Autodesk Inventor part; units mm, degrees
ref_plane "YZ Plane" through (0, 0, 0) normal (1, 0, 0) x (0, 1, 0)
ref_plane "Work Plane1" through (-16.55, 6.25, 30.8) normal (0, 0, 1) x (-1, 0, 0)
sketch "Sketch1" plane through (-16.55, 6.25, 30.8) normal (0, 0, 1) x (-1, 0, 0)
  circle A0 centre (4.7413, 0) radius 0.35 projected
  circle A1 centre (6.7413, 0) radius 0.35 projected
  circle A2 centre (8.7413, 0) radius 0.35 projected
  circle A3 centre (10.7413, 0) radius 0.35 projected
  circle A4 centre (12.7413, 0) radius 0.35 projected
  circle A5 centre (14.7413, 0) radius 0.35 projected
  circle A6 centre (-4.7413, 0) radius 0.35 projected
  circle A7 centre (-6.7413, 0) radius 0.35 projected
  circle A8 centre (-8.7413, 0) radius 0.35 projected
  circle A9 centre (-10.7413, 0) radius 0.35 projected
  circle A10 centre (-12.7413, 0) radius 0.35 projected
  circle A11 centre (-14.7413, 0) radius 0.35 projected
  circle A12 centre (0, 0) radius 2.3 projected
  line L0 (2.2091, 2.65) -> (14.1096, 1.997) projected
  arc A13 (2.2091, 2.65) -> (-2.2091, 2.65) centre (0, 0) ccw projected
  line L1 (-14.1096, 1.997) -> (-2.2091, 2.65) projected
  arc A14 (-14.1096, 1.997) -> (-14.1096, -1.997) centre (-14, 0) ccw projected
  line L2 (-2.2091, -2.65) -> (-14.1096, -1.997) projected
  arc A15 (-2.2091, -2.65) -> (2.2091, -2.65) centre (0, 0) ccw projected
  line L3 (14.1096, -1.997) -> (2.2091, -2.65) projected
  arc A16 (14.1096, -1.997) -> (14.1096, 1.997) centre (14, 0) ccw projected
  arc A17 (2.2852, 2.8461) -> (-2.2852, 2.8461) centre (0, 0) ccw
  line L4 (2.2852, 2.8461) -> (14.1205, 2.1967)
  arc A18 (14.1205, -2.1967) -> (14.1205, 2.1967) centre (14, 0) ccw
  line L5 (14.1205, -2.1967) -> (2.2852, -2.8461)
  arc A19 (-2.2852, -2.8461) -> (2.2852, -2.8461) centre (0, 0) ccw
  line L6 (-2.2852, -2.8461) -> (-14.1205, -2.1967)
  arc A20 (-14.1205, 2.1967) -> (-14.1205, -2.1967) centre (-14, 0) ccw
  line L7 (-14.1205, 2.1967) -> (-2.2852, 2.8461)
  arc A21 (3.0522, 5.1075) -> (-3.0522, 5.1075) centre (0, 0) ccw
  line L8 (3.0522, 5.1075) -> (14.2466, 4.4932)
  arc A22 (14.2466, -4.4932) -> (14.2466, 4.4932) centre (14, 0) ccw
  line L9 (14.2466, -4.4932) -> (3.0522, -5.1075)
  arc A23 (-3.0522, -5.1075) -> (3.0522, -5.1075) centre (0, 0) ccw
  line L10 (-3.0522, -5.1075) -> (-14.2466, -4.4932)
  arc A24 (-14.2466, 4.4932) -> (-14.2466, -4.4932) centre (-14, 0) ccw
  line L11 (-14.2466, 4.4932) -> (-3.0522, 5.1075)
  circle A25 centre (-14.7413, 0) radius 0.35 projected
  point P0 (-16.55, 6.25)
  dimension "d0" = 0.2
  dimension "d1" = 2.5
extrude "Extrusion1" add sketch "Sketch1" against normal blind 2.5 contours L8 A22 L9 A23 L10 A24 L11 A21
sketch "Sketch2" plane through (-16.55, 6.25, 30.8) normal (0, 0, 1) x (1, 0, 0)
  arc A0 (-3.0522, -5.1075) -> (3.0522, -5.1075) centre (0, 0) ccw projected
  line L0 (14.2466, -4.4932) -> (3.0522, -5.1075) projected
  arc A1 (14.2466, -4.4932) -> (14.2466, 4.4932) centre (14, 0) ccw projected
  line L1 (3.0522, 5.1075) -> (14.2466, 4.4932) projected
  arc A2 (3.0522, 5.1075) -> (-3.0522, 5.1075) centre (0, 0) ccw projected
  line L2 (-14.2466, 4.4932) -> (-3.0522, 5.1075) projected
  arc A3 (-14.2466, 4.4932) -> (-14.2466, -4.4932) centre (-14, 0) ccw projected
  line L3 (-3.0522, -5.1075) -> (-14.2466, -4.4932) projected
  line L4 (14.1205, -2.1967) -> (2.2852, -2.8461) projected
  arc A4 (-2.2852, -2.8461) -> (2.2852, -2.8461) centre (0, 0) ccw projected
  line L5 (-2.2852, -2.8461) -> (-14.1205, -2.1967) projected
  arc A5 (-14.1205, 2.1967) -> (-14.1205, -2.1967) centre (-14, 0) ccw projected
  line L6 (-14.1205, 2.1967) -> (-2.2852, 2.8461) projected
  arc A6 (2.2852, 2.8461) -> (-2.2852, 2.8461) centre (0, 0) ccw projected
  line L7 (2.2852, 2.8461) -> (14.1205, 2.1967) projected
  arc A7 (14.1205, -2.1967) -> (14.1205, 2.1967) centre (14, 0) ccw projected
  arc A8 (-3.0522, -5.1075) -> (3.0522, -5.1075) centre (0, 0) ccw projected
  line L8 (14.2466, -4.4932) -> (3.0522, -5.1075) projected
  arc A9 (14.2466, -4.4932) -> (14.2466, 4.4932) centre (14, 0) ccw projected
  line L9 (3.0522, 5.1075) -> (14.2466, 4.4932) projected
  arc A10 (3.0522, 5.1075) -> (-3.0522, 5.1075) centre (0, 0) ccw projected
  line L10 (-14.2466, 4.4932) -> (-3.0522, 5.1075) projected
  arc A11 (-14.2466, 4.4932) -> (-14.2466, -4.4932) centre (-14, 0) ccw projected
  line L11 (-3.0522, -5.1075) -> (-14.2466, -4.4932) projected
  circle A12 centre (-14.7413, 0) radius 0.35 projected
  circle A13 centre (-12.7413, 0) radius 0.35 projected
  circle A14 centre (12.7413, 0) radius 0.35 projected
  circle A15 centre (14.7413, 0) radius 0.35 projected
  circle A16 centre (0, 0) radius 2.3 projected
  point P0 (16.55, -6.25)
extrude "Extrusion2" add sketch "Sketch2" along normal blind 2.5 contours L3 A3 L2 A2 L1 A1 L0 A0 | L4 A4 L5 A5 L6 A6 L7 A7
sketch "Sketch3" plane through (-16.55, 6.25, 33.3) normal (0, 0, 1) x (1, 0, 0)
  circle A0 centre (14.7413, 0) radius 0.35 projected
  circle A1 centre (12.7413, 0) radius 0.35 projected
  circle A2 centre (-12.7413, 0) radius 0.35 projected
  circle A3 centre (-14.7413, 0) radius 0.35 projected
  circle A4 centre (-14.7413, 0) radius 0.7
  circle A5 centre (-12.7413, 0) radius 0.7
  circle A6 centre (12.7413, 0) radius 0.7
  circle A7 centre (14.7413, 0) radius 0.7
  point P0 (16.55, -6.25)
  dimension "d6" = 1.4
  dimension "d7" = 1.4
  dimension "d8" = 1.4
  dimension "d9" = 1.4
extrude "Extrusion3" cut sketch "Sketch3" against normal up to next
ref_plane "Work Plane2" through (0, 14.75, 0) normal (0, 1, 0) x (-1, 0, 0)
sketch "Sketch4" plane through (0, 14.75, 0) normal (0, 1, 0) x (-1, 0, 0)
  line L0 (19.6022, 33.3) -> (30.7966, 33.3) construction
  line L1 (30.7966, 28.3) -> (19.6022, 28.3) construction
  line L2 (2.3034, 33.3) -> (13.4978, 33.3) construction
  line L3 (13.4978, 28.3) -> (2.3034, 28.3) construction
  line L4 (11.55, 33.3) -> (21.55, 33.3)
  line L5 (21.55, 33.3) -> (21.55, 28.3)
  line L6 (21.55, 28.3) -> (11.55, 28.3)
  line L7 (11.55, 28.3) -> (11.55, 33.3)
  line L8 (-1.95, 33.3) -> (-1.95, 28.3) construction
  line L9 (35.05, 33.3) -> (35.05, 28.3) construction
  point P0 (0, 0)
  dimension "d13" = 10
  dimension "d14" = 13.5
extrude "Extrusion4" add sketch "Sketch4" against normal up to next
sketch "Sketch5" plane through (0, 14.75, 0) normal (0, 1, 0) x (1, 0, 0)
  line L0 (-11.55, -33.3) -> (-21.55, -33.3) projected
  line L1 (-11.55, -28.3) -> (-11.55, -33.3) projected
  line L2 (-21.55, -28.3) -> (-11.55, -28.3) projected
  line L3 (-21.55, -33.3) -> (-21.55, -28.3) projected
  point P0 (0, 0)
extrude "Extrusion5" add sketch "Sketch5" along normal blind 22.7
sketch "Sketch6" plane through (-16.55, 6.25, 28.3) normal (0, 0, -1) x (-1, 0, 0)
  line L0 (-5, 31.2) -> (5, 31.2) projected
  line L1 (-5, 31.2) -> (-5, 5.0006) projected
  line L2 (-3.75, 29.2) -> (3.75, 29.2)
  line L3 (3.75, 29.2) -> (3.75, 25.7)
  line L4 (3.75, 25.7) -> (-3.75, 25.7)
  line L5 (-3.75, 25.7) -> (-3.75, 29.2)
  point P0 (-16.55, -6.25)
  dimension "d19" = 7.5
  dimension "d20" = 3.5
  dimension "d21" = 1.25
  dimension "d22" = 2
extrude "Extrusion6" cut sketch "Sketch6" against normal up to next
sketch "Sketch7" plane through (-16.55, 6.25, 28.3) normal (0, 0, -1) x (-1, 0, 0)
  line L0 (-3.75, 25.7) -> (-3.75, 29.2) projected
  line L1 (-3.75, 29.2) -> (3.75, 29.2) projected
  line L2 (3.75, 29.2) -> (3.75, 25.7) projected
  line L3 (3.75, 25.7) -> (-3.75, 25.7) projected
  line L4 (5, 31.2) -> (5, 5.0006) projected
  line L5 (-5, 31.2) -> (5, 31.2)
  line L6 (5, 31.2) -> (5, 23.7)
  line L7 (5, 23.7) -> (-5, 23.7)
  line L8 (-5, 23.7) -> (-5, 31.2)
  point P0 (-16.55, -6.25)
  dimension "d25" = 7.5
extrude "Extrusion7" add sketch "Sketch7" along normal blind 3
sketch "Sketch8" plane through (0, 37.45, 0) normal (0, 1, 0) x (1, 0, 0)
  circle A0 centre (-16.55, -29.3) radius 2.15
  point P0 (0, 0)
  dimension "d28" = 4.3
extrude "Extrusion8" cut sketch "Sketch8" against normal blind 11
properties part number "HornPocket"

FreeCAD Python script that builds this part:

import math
import FreeCAD as App
import Part
import Sketcher
from FreeCAD import Vector
Q = App.Units.Quantity


def add_polygon(sketch, points):
    """Adds a closed chain of lines whose ends are joined by coincident constraints."""
    first, n = sketch.GeometryCount, len(points)
    for a, b in zip(points, points[1:] + points[:1]):
        sketch.addGeometry(Part.LineSegment(App.Vector(*a, 0), App.Vector(*b, 0)), False)
    for i in range(n):
        sketch.addConstraint(Sketcher.Constraint("Coincident", first + i, 2, first + (i + 1) % n, 1))

doc = App.newDocument("Part")
body = doc.addObject("PartDesign::Body", "Body")

# Sketch on XY plane
sketch1 = body.newObject("Sketcher::SketchObject", "Sketch")
sketch1.AttachmentSupport = (doc.getObject("XY_Plane"), [""])
sketch1.MapMode = "FlatFace"
sketch1.AttachmentOffset = App.Placement(Vector(0, 0, 30.8), App.Rotation())
sketch1.addGeometry(Part.LineSegment(Vector(-30.8, 1.8, 0), Vector(-19.6, 1.1, 0)), False)
sketch1.addGeometry(Part.ArcOfCircle(Part.Circle(Vector(-16.6, 6.2, 0), Vector(0, 0, 1), 5.9), math.radians(-121), math.radians(-59)), False)
sketch1.addGeometry(Part.LineSegment(Vector(-13.5, 1.1, 0), Vector(-2.3, 1.8, 0)), False)
sketch1.addGeometry(Part.ArcOfCircle(Part.Circle(Vector(-2.5, 6.2, 0), Vector(0, 0, 1), 4.5), math.radians(-87), math.radians(87)), False)
sketch1.addGeometry(Part.LineSegment(Vector(-2.3, 10.7, 0), Vector(-13.5, 11.4, 0)), False)
sketch1.addGeometry(Part.ArcOfCircle(Part.Circle(Vector(-16.6, 6.2, 0), Vector(0, 0, 1), 5.9), math.radians(59), math.radians(121)), False)
sketch1.addGeometry(Part.LineSegment(Vector(-19.6, 11.4, 0), Vector(-30.8, 10.7, 0)), False)
sketch1.addGeometry(Part.ArcOfCircle(Part.Circle(Vector(-30.6, 6.2, 0), Vector(0, 0, 1), 4.5), math.radians(93), math.radians(267)), False)
sketch1.addGeometry(Part.ArcOfCircle(Part.Circle(Vector(-16.6, 6.2, 0), Vector(0, 0, 1), 3.6), math.radians(-129), math.radians(-51)), False)
sketch1.addGeometry(Part.LineSegment(Vector(-18.8, 3.4, 0), Vector(-30.7, 4.1, 0)), False)
sketch1.addGeometry(Part.ArcOfCircle(Part.Circle(Vector(-30.6, 6.2, 0), Vector(0, 0, 1), 2.2), math.radians(93), math.radians(267)), False)
sketch1.addGeometry(Part.LineSegment(Vector(-30.7, 8.4, 0), Vector(-18.8, 9.1, 0)), False)
sketch1.addGeometry(Part.ArcOfCircle(Part.Circle(Vector(-16.6, 6.2, 0), Vector(0, 0, 1), 3.6), math.radians(51), math.radians(129)), False)
sketch1.addGeometry(Part.LineSegment(Vector(-14.3, 9.1, 0), Vector(-2.4, 8.4, 0)), False)
sketch1.addGeometry(Part.ArcOfCircle(Part.Circle(Vector(-2.5, 6.2, 0), Vector(0, 0, 1), 2.2), math.radians(-87), math.radians(87)), False)
sketch1.addGeometry(Part.LineSegment(Vector(-2.4, 4.1, 0), Vector(-14.3, 3.4, 0)), False)
sketch1.addConstraint(Sketcher.Constraint("Coincident", 0, 2, 1, 1))
sketch1.addConstraint(Sketcher.Constraint("Coincident", 1, 2, 2, 1))
sketch1.addConstraint(Sketcher.Constraint("Tangent", 2, 2, 3, 1))
sketch1.addConstraint(Sketcher.Constraint("Tangent", 3, 2, 4, 1))
sketch1.addConstraint(Sketcher.Constraint("Coincident", 4, 2, 5, 1))
sketch1.addConstraint(Sketcher.Constraint("Coincident", 5, 2, 6, 1))
sketch1.addConstraint(Sketcher.Constraint("Tangent", 6, 2, 7, 1))
sketch1.addConstraint(Sketcher.Constraint("Tangent", 7, 2, 0, 1))
sketch1.addConstraint(Sketcher.Constraint("Coincident", 8, 1, 9, 1))
sketch1.addConstraint(Sketcher.Constraint("Tangent", 9, 2, 10, 2))
sketch1.addConstraint(Sketcher.Constraint("Tangent", 10, 1, 11, 1))
sketch1.addConstraint(Sketcher.Constraint("Coincident", 11, 2, 12, 2))
sketch1.addConstraint(Sketcher.Constraint("Coincident", 12, 1, 13, 1))
sketch1.addConstraint(Sketcher.Constraint("Tangent", 13, 2, 14, 2))
sketch1.addConstraint(Sketcher.Constraint("Tangent", 14, 1, 15, 1))
sketch1.addConstraint(Sketcher.Constraint("Coincident", 15, 2, 8, 2))
sketch1.addConstraint(Sketcher.Constraint("Coincident", 5, 3, 1, 3))
sketch1.addConstraint(Sketcher.Constraint("Coincident", 8, 3, 1, 3))
sketch1.addConstraint(Sketcher.Constraint("Coincident", 10, 3, 7, 3))
sketch1.addConstraint(Sketcher.Constraint("Coincident", 12, 3, 1, 3))
sketch1.addConstraint(Sketcher.Constraint("Coincident", 14, 3, 3, 3))
sketch1.addConstraint(Sketcher.Constraint("Equal", 1, 5))
sketch1.addConstraint(Sketcher.Constraint("Equal", 3, 7))
sketch1.addConstraint(Sketcher.Constraint("Equal", 8, 12))
sketch1.addConstraint(Sketcher.Constraint("Equal", 10, 14))
sketch1.addConstraint(Sketcher.Constraint("Parallel", 0, 4))
sketch1.addConstraint(Sketcher.Constraint("Parallel", 2, 6))
sketch1.addConstraint(Sketcher.Constraint("Parallel", 4, 9))
sketch1.addConstraint(Sketcher.Constraint("Parallel", 6, 11))
sketch1.addConstraint(Sketcher.Constraint("Parallel", 9, 13))
sketch1.addConstraint(Sketcher.Constraint("Parallel", 11, 15))
sketch1.addConstraint(Sketcher.Constraint("Horizontal", 1, 3, 3, 3))
sketch1.addConstraint(Sketcher.Constraint("Horizontal", 5, 3, 7, 3))
sketch1.addConstraint(Sketcher.Constraint("Horizontal", 0, 2, 1, 2))
sketch1.addConstraint(Sketcher.Constraint("Horizontal", 4, 2, 5, 2))
sketch1.addConstraint(Sketcher.Constraint("Radius", 3, Q("4.5 mm")))
sketch1.addConstraint(Sketcher.Constraint("Radius", 10, Q("2.2 mm")))
sketch1.addConstraint(Sketcher.Constraint("Radius", 1, Q("5.95 mm")))
sketch1.addConstraint(Sketcher.Constraint("Radius", 8, Q("3.65 mm")))
sketch1.addConstraint(Sketcher.Constraint("DistanceX", 1, 3, 3, 3, Q("14 mm")))
sketch1.addConstraint(Sketcher.Constraint("Angle", 0, Q("-3.141 deg")))
sketch1.addConstraint(Sketcher.Constraint("DistanceX", 1, 3, -1, 1, Q("16.55 mm")))
sketch1.addConstraint(Sketcher.Constraint("DistanceY", -1, 1, 1, 3, Q("6.25 mm")))
pad1 = body.newObject("PartDesign::Pad", "Pad")
pad1.Profile = sketch1
pad1.Length = 2.5
pad1.Reversed = True

# Sketch on XY plane
sketch2 = body.newObject("Sketcher::SketchObject", "Sketch001")
sketch2.AttachmentSupport = (doc.getObject("XY_Plane"), [""])
sketch2.MapMode = "FlatFace"
sketch2.AttachmentOffset = App.Placement(Vector(0, 0, 30.8), App.Rotation())
sketch2.addGeometry(Part.LineSegment(Vector(-30.8, 1.76, 0), Vector(-19.6, 1.14, 0)), False)
sketch2.addGeometry(Part.ArcOfCircle(Part.Circle(Vector(-16.55, 6.25, 0), Vector(0, 0, 1), 5.95), math.radians(-121), math.radians(-59)), False)
sketch2.addGeometry(Part.LineSegment(Vector(-13.5, 1.14, 0), Vector(-2.3, 1.76, 0)), False)
sketch2.addGeometry(Part.ArcOfCircle(Part.Circle(Vector(-2.55, 6.25, 0), Vector(0, 0, 1), 4.5), math.radians(-87), math.radians(87)), False)
sketch2.addGeometry(Part.LineSegment(Vector(-2.3, 10.74, 0), Vector(-13.5, 11.36, 0)), False)
sketch2.addGeometry(Part.ArcOfCircle(Part.Circle(Vector(-16.55, 6.25, 0), Vector(0, 0, 1), 5.95), math.radians(59), math.radians(121)), False)
sketch2.addGeometry(Part.LineSegment(Vector(-19.6, 11.36, 0), Vector(-30.8, 10.74, 0)), False)
sketch2.addGeometry(Part.ArcOfCircle(Part.Circle(Vector(-30.55, 6.25, 0), Vector(0, 0, 1), 4.5), math.radians(93), math.radians(267)), False)
sketch2.addGeometry(Part.Circle(Vector(-16.55, 6.25, 0), Vector(0, 0, 1), 2.3), False)
sketch2.addGeometry(Part.Circle(Vector(-3.81, 6.25, 0), Vector(0, 0, 1), 0.35), False)
sketch2.addGeometry(Part.Circle(Vector(-1.81, 6.25, 0), Vector(0, 0, 1), 0.35), False)
sketch2.addGeometry(Part.Circle(Vector(-31.29, 6.25, 0), Vector(0, 0, 1), 0.35), False)
sketch2.addGeometry(Part.Circle(Vector(-29.29, 6.25, 0), Vector(0, 0, 1), 0.35), False)
sketch2.addConstraint(Sketcher.Constraint("Coincident", 0, 2, 1, 1))
sketch2.addConstraint(Sketcher.Constraint("Coincident", 1, 2, 2, 1))
sketch2.addConstraint(Sketcher.Constraint("Tangent", 2, 2, 3, 1))
sketch2.addConstraint(Sketcher.Constraint("Tangent", 3, 2, 4, 1))
sketch2.addConstraint(Sketcher.Constraint("Coincident", 4, 2, 5, 1))
sketch2.addConstraint(Sketcher.Constraint("Coincident", 5, 2, 6, 1))
sketch2.addConstraint(Sketcher.Constraint("Tangent", 6, 2, 7, 1))
sketch2.addConstraint(Sketcher.Constraint("Tangent", 7, 2, 0, 1))
sketch2.addConstraint(Sketcher.Constraint("Coincident", 5, 3, 1, 3))
sketch2.addConstraint(Sketcher.Constraint("Coincident", 8, 3, 1, 3))
sketch2.addConstraint(Sketcher.Constraint("Equal", 1, 5))
sketch2.addConstraint(Sketcher.Constraint("Equal", 3, 7))
sketch2.addConstraint(Sketcher.Constraint("Equal", 9, 10))
sketch2.addConstraint(Sketcher.Constraint("Equal", 10, 11))
sketch2.addConstraint(Sketcher.Constraint("Equal", 11, 12))
sketch2.addConstraint(Sketcher.Constraint("Parallel", 0, 4))
sketch2.addConstraint(Sketcher.Constraint("Parallel", 2, 6))
sketch2.addConstraint(Sketcher.Constraint("Horizontal", 1, 3, 3, 3))
sketch2.addConstraint(Sketcher.Constraint("Horizontal", 5, 3, 7, 3))
sketch2.addConstraint(Sketcher.Constraint("Horizontal", 8, 3, 9, 3))
sketch2.addConstraint(Sketcher.Constraint("Horizontal", 9, 3, 10, 3))
sketch2.addConstraint(Sketcher.Constraint("Horizontal", 10, 3, 11, 3))
sketch2.addConstraint(Sketcher.Constraint("Horizontal", 11, 3, 12, 3))
sketch2.addConstraint(Sketcher.Constraint("Horizontal", 0, 2, 1, 2))
sketch2.addConstraint(Sketcher.Constraint("Horizontal", 4, 2, 5, 2))
sketch2.addConstraint(Sketcher.Constraint("Diameter", 8, Q("4.6 mm")))
sketch2.addConstraint(Sketcher.Constraint("Diameter", 9, Q("0.7 mm")))
sketch2.addConstraint(Sketcher.Constraint("Radius", 3, Q("4.5 mm")))
sketch2.addConstraint(Sketcher.Constraint("Radius", 1, Q("5.95 mm")))
sketch2.addConstraint(Sketcher.Constraint("DistanceX", 1, 3, 3, 3, Q("14 mm")))
sketch2.addConstraint(Sketcher.Constraint("DistanceX", 9, 3, 10, 3, Q("2 mm")))
sketch2.addConstraint(Sketcher.Constraint("DistanceX", 11, 3, 12, 3, Q("2 mm")))
sketch2.addConstraint(Sketcher.Constraint("Angle", 0, Q("-3.141 deg")))
sketch2.addConstraint(Sketcher.Constraint("DistanceX", 1, 3, -1, 1, Q("16.55 mm")))
sketch2.addConstraint(Sketcher.Constraint("DistanceY", -1, 1, 1, 3, Q("6.25 mm")))
sketch2.addConstraint(Sketcher.Constraint("DistanceX", 12, 3, 0, 2, Q("9.689 mm")))
sketch2.addConstraint(Sketcher.Constraint("DistanceX", 1, 2, 9, 3, Q("9.689 mm")))
pad2 = body.newObject("PartDesign::Pad", "Pad001")
pad2.Profile = sketch2
pad2.Length = 2.5

# Sketch on XY plane
sketch3 = body.newObject("Sketcher::SketchObject", "Sketch002")
sketch3.AttachmentSupport = (doc.getObject("XY_Plane"), [""])
sketch3.MapMode = "FlatFace"
sketch3.AttachmentOffset = App.Placement(Vector(0, 0, 33.3), App.Rotation())
sketch3.addGeometry(Part.Circle(Vector(-31.29, 6.25, 0), Vector(0, 0, 1), 0.7), False)
sketch3.addGeometry(Part.Circle(Vector(-31.29, 6.25, 0), Vector(0, 0, 1), 0.35), False)
sketch3.addGeometry(Part.Circle(Vector(-29.29, 6.25, 0), Vector(0, 0, 1), 0.7), False)
sketch3.addGeometry(Part.Circle(Vector(-29.29, 6.25, 0), Vector(0, 0, 1), 0.35), False)
sketch3.addGeometry(Part.Circle(Vector(-3.81, 6.25, 0), Vector(0, 0, 1), 0.7), False)
sketch3.addGeometry(Part.Circle(Vector(-3.81, 6.25, 0), Vector(0, 0, 1), 0.35), False)
sketch3.addGeometry(Part.Circle(Vector(-1.81, 6.25, 0), Vector(0, 0, 1), 0.7), False)
sketch3.addGeometry(Part.Circle(Vector(-1.81, 6.25, 0), Vector(0, 0, 1), 0.35), False)
sketch3.addConstraint(Sketcher.Constraint("Coincident", 1, 3, 0, 3))
sketch3.addConstraint(Sketcher.Constraint("Coincident", 3, 3, 2, 3))
sketch3.addConstraint(Sketcher.Constraint("Coincident", 5, 3, 4, 3))
sketch3.addConstraint(Sketcher.Constraint("Coincident", 7, 3, 6, 3))
sketch3.addConstraint(Sketcher.Constraint("Equal", 0, 2))
sketch3.addConstraint(Sketcher.Constraint("Equal", 1, 3))
sketch3.addConstraint(Sketcher.Constraint("Equal", 2, 4))
sketch3.addConstraint(Sketcher.Constraint("Equal", 3, 5))
sketch3.addConstraint(Sketcher.Constraint("Equal", 4, 6))
sketch3.addConstraint(Sketcher.Constraint("Equal", 5, 7))
sketch3.addConstraint(Sketcher.Constraint("Horizontal", 1, 3, 2, 3))
sketch3.addConstraint(Sketcher.Constraint("Horizontal", 3, 3, 4, 3))
sketch3.addConstraint(Sketcher.Constraint("Horizontal", 5, 3, 6, 3))
sketch3.addConstraint(Sketcher.Constraint("Diameter", 0, Q("1.4 mm")))
sketch3.addConstraint(Sketcher.Constraint("Diameter", 1, Q("0.7 mm")))
sketch3.addConstraint(Sketcher.Constraint("DistanceX", 0, 3, 2, 3, Q("2 mm")))
sketch3.addConstraint(Sketcher.Constraint("DistanceX", 4, 3, 6, 3, Q("2 mm")))
sketch3.addConstraint(Sketcher.Constraint("DistanceY", -1, 1, 0, 3, Q("6.25 mm")))
sketch3.addConstraint(Sketcher.Constraint("DistanceX", 0, 3, -1, 1, Q("31.2913 mm")))
sketch3.addConstraint(Sketcher.Constraint("DistanceX", 4, 3, -1, 1, Q("3.8087 mm")))
pocket1 = body.newObject("PartDesign::Pocket", "Pocket")
pocket1.Profile = sketch3
pocket1.Length = 2.5

# Sketch on XZ plane
sketch4 = body.newObject("Sketcher::SketchObject", "Sketch003")
sketch4.AttachmentSupport = (doc.getObject("XZ_Plane"), [""])
sketch4.MapMode = "FlatFace"
sketch4.AttachmentOffset = App.Placement(Vector(0, 0, -14.75), App.Rotation())
add_polygon(sketch4, [(-21.6, 33.3), (-11.6, 33.3), (-11.6, 28.3), (-21.6, 28.3)])  # lines 0-3
sketch4.addConstraint(Sketcher.Constraint("Horizontal", 0))
sketch4.addConstraint(Sketcher.Constraint("Vertical", 1))
sketch4.addConstraint(Sketcher.Constraint("Horizontal", 2))
sketch4.addConstraint(Sketcher.Constraint("Vertical", 3))
sketch4.addConstraint(Sketcher.Constraint("DistanceX", 0, 1, 0, 2, Q("10 mm")))
sketch4.addConstraint(Sketcher.Constraint("DistanceY", 1, 2, 1, 1, Q("5 mm")))
sketch4.addConstraint(Sketcher.Constraint("DistanceY", -1, 1, 0, 2, Q("33.3 mm")))
sketch4.addConstraint(Sketcher.Constraint("DistanceX", 0, 2, -1, 1, Q("11.55 mm")))
pad3 = body.newObject("PartDesign::Pad", "Pad002")
pad3.Profile = sketch4
pad3.Type = "UpToFirst"

# Sketch on XZ plane
sketch5 = body.newObject("Sketcher::SketchObject", "Sketch004")
sketch5.AttachmentSupport = (doc.getObject("XZ_Plane"), [""])
sketch5.MapMode = "FlatFace"
sketch5.AttachmentOffset = App.Placement(Vector(0, 0, -14.75), App.Rotation())
add_polygon(sketch5, [(-21.6, 33.3), (-11.6, 33.3), (-11.6, 28.3), (-21.6, 28.3)])  # lines 0-3
sketch5.addConstraint(Sketcher.Constraint("Horizontal", 0))
sketch5.addConstraint(Sketcher.Constraint("Vertical", 1))
sketch5.addConstraint(Sketcher.Constraint("Horizontal", 2))
sketch5.addConstraint(Sketcher.Constraint("Vertical", 3))
sketch5.addConstraint(Sketcher.Constraint("DistanceX", 0, 1, 0, 2, Q("10 mm")))
sketch5.addConstraint(Sketcher.Constraint("DistanceY", 1, 2, 1, 1, Q("5 mm")))
sketch5.addConstraint(Sketcher.Constraint("DistanceY", -1, 1, 0, 2, Q("33.3 mm")))
sketch5.addConstraint(Sketcher.Constraint("DistanceX", 0, 2, -1, 1, Q("11.55 mm")))
pad4 = body.newObject("PartDesign::Pad", "Pad003")
pad4.Profile = sketch5
pad4.Length = 22.7
pad4.Reversed = True

# Sketch on XY plane
sketch6 = body.newObject("Sketcher::SketchObject", "Sketch005")
sketch6.AttachmentSupport = (doc.getObject("XY_Plane"), [""])
sketch6.MapMode = "FlatFace"
sketch6.AttachmentOffset = App.Placement(Vector(0, 0, 28.3), App.Rotation())
add_polygon(sketch6, [(-20.3, 35.5), (-12.8, 35.5), (-12.8, 31.9), (-20.3, 31.9)])  # lines 0-3
sketch6.addConstraint(Sketcher.Constraint("Horizontal", 0))
sketch6.addConstraint(Sketcher.Constraint("Vertical", 1))
sketch6.addConstraint(Sketcher.Constraint("Horizontal", 2))
sketch6.addConstraint(Sketcher.Constraint("Vertical", 3))
sketch6.addConstraint(Sketcher.Constraint("DistanceX", 0, 1, 0, 2, Q("7.5 mm")))
sketch6.addConstraint(Sketcher.Constraint("DistanceY", 1, 2, 1, 1, Q("3.5 mm")))
sketch6.addConstraint(Sketcher.Constraint("DistanceX", 0, 2, -1, 1, Q("12.8 mm")))
sketch6.addConstraint(Sketcher.Constraint("DistanceY", -1, 1, 0, 2, Q("35.45 mm")))
pocket2 = body.newObject("PartDesign::Pocket", "Pocket001")
pocket2.Profile = sketch6
pocket2.Type = "UpToFirst"
pocket2.Reversed = True

# Sketch on XY plane
sketch7 = body.newObject("Sketcher::SketchObject", "Sketch006")
sketch7.AttachmentSupport = (doc.getObject("XY_Plane"), [""])
sketch7.MapMode = "FlatFace"
sketch7.AttachmentOffset = App.Placement(Vector(0, 0, 28.3), App.Rotation())
add_polygon(sketch7, [(-21.6, 29.9), (-21.6, 37.5), (-11.6, 37.5), (-11.6, 29.9)])  # lines 0-3
add_polygon(sketch7, [(-20.3, 31.9), (-12.8, 31.9), (-12.8, 35.5), (-20.3, 35.5)])  # lines 4-7
sketch7.addConstraint(Sketcher.Constraint("Vertical", 0))
sketch7.addConstraint(Sketcher.Constraint("Horizontal", 1))
sketch7.addConstraint(Sketcher.Constraint("Vertical", 2))
sketch7.addConstraint(Sketcher.Constraint("Horizontal", 3))
sketch7.addConstraint(Sketcher.Constraint("Horizontal", 4))
sketch7.addConstraint(Sketcher.Constraint("Vertical", 5))
sketch7.addConstraint(Sketcher.Constraint("Horizontal", 6))
sketch7.addConstraint(Sketcher.Constraint("Vertical", 7))
sketch7.addConstraint(Sketcher.Constraint("Equal", 6, 0))
sketch7.addConstraint(Sketcher.Constraint("DistanceX", 4, 1, 4, 2, Q("7.5 mm")))
sketch7.addConstraint(Sketcher.Constraint("DistanceX", 1, 1, 1, 2, Q("10 mm")))
sketch7.addConstraint(Sketcher.Constraint("DistanceY", 5, 1, 5, 2, Q("3.5 mm")))
sketch7.addConstraint(Sketcher.Constraint("DistanceY", 2, 2, 4, 2, Q("2 mm")))
sketch7.addConstraint(Sketcher.Constraint("DistanceX", 4, 2, -1, 1, Q("12.8 mm")))
sketch7.addConstraint(Sketcher.Constraint("DistanceX", 0, 2, -1, 1, Q("21.55 mm")))
sketch7.addConstraint(Sketcher.Constraint("DistanceY", -1, 1, 0, 2, Q("37.45 mm")))
pad5 = body.newObject("PartDesign::Pad", "Pad004")
pad5.Profile = sketch7
pad5.Length = 3
pad5.Reversed = True

# Sketch on XZ plane
sketch8 = body.newObject("Sketcher::SketchObject", "Sketch007")
sketch8.AttachmentSupport = (doc.getObject("XZ_Plane"), [""])
sketch8.MapMode = "FlatFace"
sketch8.AttachmentOffset = App.Placement(Vector(0, 0, -37.45), App.Rotation())
sketch8.addGeometry(Part.Circle(Vector(-16.6, 29.3, 0), Vector(0, 0, 1), 2.1), False)
sketch8.addConstraint(Sketcher.Constraint("Diameter", 0, Q("4.3 mm")))
sketch8.addConstraint(Sketcher.Constraint("DistanceY", -1, 1, 0, 3, Q("29.3 mm")))
sketch8.addConstraint(Sketcher.Constraint("DistanceX", 0, 3, -1, 1, Q("16.55 mm")))
pocket3 = body.newObject("PartDesign::Pocket", "Pocket002")
pocket3.Profile = sketch8
pocket3.Length = 11
pocket3.Reversed = True

doc.recompute()
